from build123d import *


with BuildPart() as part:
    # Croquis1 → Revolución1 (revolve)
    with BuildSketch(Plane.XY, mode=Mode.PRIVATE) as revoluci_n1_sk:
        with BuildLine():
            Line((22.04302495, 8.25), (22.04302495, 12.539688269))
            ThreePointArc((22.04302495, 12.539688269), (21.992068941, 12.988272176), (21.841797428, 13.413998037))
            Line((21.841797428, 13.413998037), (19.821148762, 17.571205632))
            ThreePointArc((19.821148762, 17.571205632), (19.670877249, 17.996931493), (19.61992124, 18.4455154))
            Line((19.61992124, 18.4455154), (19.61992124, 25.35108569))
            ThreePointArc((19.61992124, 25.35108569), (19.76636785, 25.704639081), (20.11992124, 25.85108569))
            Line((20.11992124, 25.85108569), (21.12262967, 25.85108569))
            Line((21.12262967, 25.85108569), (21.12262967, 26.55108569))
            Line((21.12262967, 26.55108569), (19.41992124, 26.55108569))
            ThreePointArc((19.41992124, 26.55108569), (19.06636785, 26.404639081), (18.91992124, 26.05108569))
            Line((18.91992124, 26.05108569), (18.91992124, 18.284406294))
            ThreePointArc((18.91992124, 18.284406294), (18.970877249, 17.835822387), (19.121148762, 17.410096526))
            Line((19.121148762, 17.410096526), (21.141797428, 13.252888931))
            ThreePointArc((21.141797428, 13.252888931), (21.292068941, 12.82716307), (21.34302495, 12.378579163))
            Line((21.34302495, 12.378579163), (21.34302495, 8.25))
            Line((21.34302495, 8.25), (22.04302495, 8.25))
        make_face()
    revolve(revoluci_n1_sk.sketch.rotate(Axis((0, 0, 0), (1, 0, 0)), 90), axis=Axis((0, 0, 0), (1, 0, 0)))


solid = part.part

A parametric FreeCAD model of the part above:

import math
import FreeCAD as App
import Part
import Sketcher
from FreeCAD import Vector

doc = App.newDocument("Part")
body = doc.addObject("PartDesign::Body", "Body")

sketch1 = doc.addObject("Sketcher::SketchObject", "Sketch")
body.addObject(sketch1)
sketch1.AttachmentSupport = (doc.XY_Plane, [""])
sketch1.MapMode = "FlatFace"
sketch1.addGeometry([
    Part.LineSegment(Vector(22, 8.2, 0), Vector(22, 12.5, 0)),
    Part.ArcOfCircle(Part.Circle(Vector(20, 12.5, 0), Vector(0, 0, 1), 2), math.radians(0), math.radians(26)),
    Part.LineSegment(Vector(21.8, 13.4, 0), Vector(19.8, 17.6, 0)),
    Part.ArcOfCircle(Part.Circle(Vector(21.6, 18.4, 0), Vector(0, 0, 1), 2), math.radians(180), math.radians(206)),
    Part.LineSegment(Vector(19.6, 18.4, 0), Vector(19.6, 25.4, 0)),
    Part.ArcOfCircle(Part.Circle(Vector(20.1, 25.4, 0), Vector(0, 0, 1), 0.5), math.radians(90), math.radians(180)),
    Part.LineSegment(Vector(20.1, 25.9, 0), Vector(21.1, 25.9, 0)),
    Part.LineSegment(Vector(21.1, 25.9, 0), Vector(21.1, 26.6, 0)),
    Part.LineSegment(Vector(21.1, 26.6, 0), Vector(19.4, 26.6, 0)),
    Part.ArcOfCircle(Part.Circle(Vector(19.4, 26.1, 0), Vector(0, 0, 1), 0.5), math.radians(90), math.radians(180)),
    Part.LineSegment(Vector(18.9, 26.1, 0), Vector(18.9, 18.3, 0)),
    Part.ArcOfCircle(Part.Circle(Vector(20.9, 18.3, 0), Vector(0, 0, 1), 2), math.radians(180), math.radians(206)),
    Part.LineSegment(Vector(19.1, 17.4, 0), Vector(21.1, 13.3, 0)),
    Part.ArcOfCircle(Part.Circle(Vector(19.3, 12.4, 0), Vector(0, 0, 1), 2), math.radians(0), math.radians(26)),
    Part.LineSegment(Vector(21.3, 12.4, 0), Vector(21.3, 8.2, 0)),
    Part.LineSegment(Vector(21.3, 8.2, 0), Vector(22, 8.2, 0)),
], False)
sketch1.addConstraint([
    Sketcher.Constraint("Tangent", 0, 2, 1, 1),
    Sketcher.Constraint("Tangent", 1, 2, 2, 1),
    Sketcher.Constraint("Tangent", 2, 2, 3, 2),
    Sketcher.Constraint("Tangent", 3, 1, 4, 1),
    Sketcher.Constraint("Tangent", 4, 2, 5, 2),
    Sketcher.Constraint("Tangent", 5, 1, 6, 1),
    Sketcher.Constraint("Coincident", 6, 2, 7, 1),
    Sketcher.Constraint("Coincident", 7, 2, 8, 1),
    Sketcher.Constraint("Tangent", 8, 2, 9, 1),
    Sketcher.Constraint("Tangent", 9, 2, 10, 1),
    Sketcher.Constraint("Tangent", 10, 2, 11, 1),
    Sketcher.Constraint("Tangent", 11, 2, 12, 1),
    Sketcher.Constraint("Tangent", 12, 2, 13, 2),
    Sketcher.Constraint("Tangent", 13, 1, 14, 1),
    Sketcher.Constraint("Coincident", 14, 2, 15, 1),
    Sketcher.Constraint("Coincident", 15, 2, 0, 1),
    Sketcher.Constraint("Vertical", 0),
    Sketcher.Constraint("Vertical", 4),
    Sketcher.Constraint("Horizontal", 6),
    Sketcher.Constraint("Vertical", 7),
    Sketcher.Constraint("Horizontal", 8),
    Sketcher.Constraint("Vertical", 10),
    Sketcher.Constraint("Vertical", 14),
    Sketcher.Constraint("Horizontal", 15),
    Sketcher.Constraint("Equal", 1, 3),
    Sketcher.Constraint("Equal", 5, 9),
    Sketcher.Constraint("Equal", 3, 11),
    Sketcher.Constraint("Equal", 11, 13),
    Sketcher.Constraint("Parallel", 2, 12),
    Sketcher.Constraint("Equal", 15, 7),
    Sketcher.Constraint("Equal", 2, 12),
    Sketcher.Constraint("Radius", 1, 2.0),
    Sketcher.Constraint("Radius", 5, 0.5),
    Sketcher.Constraint("DistanceX", 15, 1, 15, 2, 0.7),
    Sketcher.Constraint("DistanceY", -1, 1, 14, 2, 8.25),
    Sketcher.Constraint("DistanceY", -1, 1, 1, 2, 13.413998),
    Sketcher.Constraint("DistanceX", 6, 1, 6, 2, 1.002708),
    Sketcher.Constraint("DistanceY", 0, 1, 0, 2, 4.289688),
    Sketcher.Constraint("DistanceY", 4, 1, 4, 2, 6.90557),
    Sketcher.Constraint("DistanceY", 10, 2, 10, 1, 7.766679),
    Sketcher.Constraint("Distance", 2, 4.622272),
    Sketcher.Constraint("DistanceX", -1, 1, 3, 3, 21.619921),
])
revolution = doc.addObject("PartDesign::Revolution", "Revolution")
body.addObject(revolution)
revolution.Profile = sketch1
revolution.ReferenceAxis = (sketch1, ["H_Axis"])
revolution.Angle = 360

doc.recompute()
